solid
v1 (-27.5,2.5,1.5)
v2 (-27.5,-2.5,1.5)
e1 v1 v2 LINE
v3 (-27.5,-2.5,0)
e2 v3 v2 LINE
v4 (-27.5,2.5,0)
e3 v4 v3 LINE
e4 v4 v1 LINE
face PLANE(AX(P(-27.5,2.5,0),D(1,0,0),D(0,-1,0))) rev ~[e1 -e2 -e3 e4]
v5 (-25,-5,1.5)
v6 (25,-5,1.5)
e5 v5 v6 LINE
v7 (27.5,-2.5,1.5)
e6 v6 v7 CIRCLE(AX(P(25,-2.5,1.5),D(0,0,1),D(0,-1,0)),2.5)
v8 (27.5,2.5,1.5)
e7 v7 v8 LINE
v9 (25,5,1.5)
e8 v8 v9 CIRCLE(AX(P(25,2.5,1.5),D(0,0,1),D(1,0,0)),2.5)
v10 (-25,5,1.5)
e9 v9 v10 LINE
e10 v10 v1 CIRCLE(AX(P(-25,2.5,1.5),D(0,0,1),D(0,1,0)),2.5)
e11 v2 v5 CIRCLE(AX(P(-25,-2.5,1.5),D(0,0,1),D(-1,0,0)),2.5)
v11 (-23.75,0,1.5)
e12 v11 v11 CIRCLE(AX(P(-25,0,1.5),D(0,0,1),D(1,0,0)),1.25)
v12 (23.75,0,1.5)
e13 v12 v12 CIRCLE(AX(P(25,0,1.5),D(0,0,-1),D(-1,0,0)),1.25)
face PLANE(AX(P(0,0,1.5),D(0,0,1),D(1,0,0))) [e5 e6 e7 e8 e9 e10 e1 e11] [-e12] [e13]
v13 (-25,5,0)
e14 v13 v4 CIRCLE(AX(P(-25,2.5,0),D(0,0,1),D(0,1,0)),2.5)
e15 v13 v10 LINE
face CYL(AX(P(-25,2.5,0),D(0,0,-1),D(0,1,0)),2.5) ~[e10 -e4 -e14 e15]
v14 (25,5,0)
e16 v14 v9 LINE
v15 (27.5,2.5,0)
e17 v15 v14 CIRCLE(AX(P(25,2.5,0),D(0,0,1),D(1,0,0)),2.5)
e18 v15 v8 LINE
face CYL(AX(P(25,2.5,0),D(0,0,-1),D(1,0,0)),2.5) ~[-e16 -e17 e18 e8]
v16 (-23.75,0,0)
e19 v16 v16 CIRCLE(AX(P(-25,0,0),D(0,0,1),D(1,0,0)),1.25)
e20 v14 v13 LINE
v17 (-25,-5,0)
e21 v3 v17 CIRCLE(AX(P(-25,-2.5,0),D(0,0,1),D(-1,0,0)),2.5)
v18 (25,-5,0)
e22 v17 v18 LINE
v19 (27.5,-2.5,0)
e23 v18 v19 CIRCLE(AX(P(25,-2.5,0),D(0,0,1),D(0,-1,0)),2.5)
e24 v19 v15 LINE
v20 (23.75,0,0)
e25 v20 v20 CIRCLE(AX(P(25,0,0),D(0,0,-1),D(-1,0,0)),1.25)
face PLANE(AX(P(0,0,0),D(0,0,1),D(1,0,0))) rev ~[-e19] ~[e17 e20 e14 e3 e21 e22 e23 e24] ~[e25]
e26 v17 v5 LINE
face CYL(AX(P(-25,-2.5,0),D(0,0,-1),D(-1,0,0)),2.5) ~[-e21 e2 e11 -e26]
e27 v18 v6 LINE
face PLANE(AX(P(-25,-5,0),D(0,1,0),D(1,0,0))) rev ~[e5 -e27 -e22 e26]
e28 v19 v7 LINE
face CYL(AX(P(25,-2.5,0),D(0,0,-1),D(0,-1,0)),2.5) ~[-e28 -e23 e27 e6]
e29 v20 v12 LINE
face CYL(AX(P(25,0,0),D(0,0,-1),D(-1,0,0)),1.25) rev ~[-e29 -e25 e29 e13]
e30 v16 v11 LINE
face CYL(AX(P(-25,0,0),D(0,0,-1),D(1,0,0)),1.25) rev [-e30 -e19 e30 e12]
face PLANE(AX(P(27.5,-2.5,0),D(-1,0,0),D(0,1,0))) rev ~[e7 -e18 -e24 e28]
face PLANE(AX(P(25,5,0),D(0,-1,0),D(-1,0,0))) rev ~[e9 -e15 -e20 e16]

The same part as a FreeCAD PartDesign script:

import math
import FreeCAD as App
import Part
import Sketcher
Q = App.Units.Quantity

doc = App.newDocument("Part")
body = doc.addObject("PartDesign::Body", "Body")

# Sketch on XY plane
sketch1 = doc.addObject("Sketcher::SketchObject", "Sketch")
body.addObject(sketch1)
sketch1.AttachmentSupport = (doc.XY_Plane, [""])
sketch1.MapMode = "FlatFace"
sketch1.addGeometry([
    Part.ArcOfCircle(Part.Circle(App.Vector(25, 2.5, 0), App.Vector(0, 0, 1), 2.5), math.radians(0), math.radians(90)),  # 0
    Part.LineSegment(App.Vector(25, 5, 0), App.Vector(-25, 5, 0)),  # 1
    Part.ArcOfCircle(Part.Circle(App.Vector(-25, 2.5, 0), App.Vector(0, 0, 1), 2.5), math.radians(90), math.radians(180)),  # 2
    Part.LineSegment(App.Vector(-27.5, 2.5, 0), App.Vector(-27.5, -2.5, 0)),  # 3
    Part.ArcOfCircle(Part.Circle(App.Vector(-25, -2.5, 0), App.Vector(0, 0, 1), 2.5), math.radians(180), math.radians(270)),  # 4
    Part.LineSegment(App.Vector(-25, -5, 0), App.Vector(25, -5, 0)),  # 5
    Part.ArcOfCircle(Part.Circle(App.Vector(25, -2.5, 0), App.Vector(0, 0, 1), 2.5), math.radians(-90), math.radians(0)),  # 6
    Part.LineSegment(App.Vector(27.5, -2.5, 0), App.Vector(27.5, 2.5, 0)),  # 7
    Part.Circle(App.Vector(-25, 0, 0), App.Vector(0, 0, 1), 1.2),  # 8
    Part.Circle(App.Vector(25, 0, 0), App.Vector(0, 0, 1), 1.2),  # 9
], False)
sketch1.addConstraint([
    Sketcher.Constraint("Tangent", 0, 2, 1, 1),
    Sketcher.Constraint("Tangent", 1, 2, 2, 1),
    Sketcher.Constraint("Tangent", 2, 2, 3, 1),
    Sketcher.Constraint("Tangent", 3, 2, 4, 1),
    Sketcher.Constraint("Tangent", 4, 2, 5, 1),
    Sketcher.Constraint("Tangent", 5, 2, 6, 1),
    Sketcher.Constraint("Tangent", 6, 2, 7, 1),
    Sketcher.Constraint("Tangent", 7, 2, 0, 1),
    Sketcher.Constraint("Horizontal", 1),
    Sketcher.Constraint("Vertical", 3),
    Sketcher.Constraint("Horizontal", 5),
    Sketcher.Constraint("Vertical", 7),
    Sketcher.Constraint("Equal", 0, 2),
    Sketcher.Constraint("Equal", 2, 4),
    Sketcher.Constraint("Equal", 4, 6),
    Sketcher.Constraint("Equal", 8, 9),
    Sketcher.Constraint("Symmetric", 0, 3, 4, 3, -1, 1),
    Sketcher.Constraint("Symmetric", 8, 3, 9, 3, -1, 1),
    Sketcher.Constraint("PointOnObject", 8, 3, -1),
    Sketcher.Constraint("Vertical", 4, 3, 8, 3),
    Sketcher.Constraint("Diameter", 8, Q("2.5 mm")),
    Sketcher.Constraint("Radius", 0, Q("2.5 mm")),
    Sketcher.Constraint("DistanceX", 1, 2, 1, 1, Q("50 mm")),
    Sketcher.Constraint("DistanceY", 3, 2, 3, 1, Q("5 mm")),
])
pad1 = doc.addObject("PartDesign::Pad", "Pad")
body.addObject(pad1)
pad1.Profile = sketch1
pad1.Length = 1.5

doc.recompute()
